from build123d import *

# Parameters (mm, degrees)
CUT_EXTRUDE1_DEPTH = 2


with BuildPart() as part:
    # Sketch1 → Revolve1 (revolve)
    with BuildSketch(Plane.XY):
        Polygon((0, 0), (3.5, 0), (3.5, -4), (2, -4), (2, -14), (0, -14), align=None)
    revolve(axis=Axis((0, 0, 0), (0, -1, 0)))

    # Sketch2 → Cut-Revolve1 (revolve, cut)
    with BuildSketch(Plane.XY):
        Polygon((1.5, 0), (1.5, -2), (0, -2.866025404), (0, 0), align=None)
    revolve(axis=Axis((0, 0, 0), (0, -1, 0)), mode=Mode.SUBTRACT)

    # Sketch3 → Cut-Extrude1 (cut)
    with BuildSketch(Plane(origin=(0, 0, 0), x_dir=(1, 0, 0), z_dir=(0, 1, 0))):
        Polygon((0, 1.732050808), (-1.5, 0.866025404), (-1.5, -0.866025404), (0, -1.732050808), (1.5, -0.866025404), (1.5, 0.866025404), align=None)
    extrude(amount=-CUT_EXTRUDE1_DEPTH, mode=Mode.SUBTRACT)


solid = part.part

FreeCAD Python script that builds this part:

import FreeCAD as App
import Part
import Sketcher

V = App.Vector
Q = App.Units.Quantity

doc = App.newDocument("Part")
body = doc.addObject("PartDesign::Body", "Body")

# Sketch on XY plane
sketch1 = body.newObject("Sketcher::SketchObject", "Sketch")
sketch1.AttachmentSupport = (doc.getObject("XY_Plane"), [""])
sketch1.MapMode = "FlatFace"
sketch1.addGeometry(Part.LineSegment(V(3.5, 0, 0), V(0, 0, 0)), False)
sketch1.addGeometry(Part.LineSegment(V(0, 0, 0), V(0, -14, 0)), False)
sketch1.addGeometry(Part.LineSegment(V(0, -14, 0), V(2, -14, 0)), False)
sketch1.addGeometry(Part.LineSegment(V(2, -14, 0), V(2, -4, 0)), False)
sketch1.addGeometry(Part.LineSegment(V(2, -4, 0), V(3.5, -4, 0)), False)
sketch1.addGeometry(Part.LineSegment(V(3.5, -4, 0), V(3.5, 0, 0)), False)
sketch1.addConstraint(Sketcher.Constraint("Coincident", 0, 2, 1, 1))
sketch1.addConstraint(Sketcher.Constraint("Coincident", 1, 2, 2, 1))
sketch1.addConstraint(Sketcher.Constraint("Coincident", 2, 2, 3, 1))
sketch1.addConstraint(Sketcher.Constraint("Coincident", 3, 2, 4, 1))
sketch1.addConstraint(Sketcher.Constraint("Coincident", 4, 2, 5, 1))
sketch1.addConstraint(Sketcher.Constraint("Coincident", 5, 2, 0, 1))
sketch1.addConstraint(Sketcher.Constraint("Horizontal", 0))
sketch1.addConstraint(Sketcher.Constraint("Vertical", 1))
sketch1.addConstraint(Sketcher.Constraint("Horizontal", 2))
sketch1.addConstraint(Sketcher.Constraint("Vertical", 3))
sketch1.addConstraint(Sketcher.Constraint("Horizontal", 4))
sketch1.addConstraint(Sketcher.Constraint("Vertical", 5))
sketch1.addConstraint(Sketcher.Constraint("Coincident", 0, 2, -1, 1))
sketch1.addConstraint(Sketcher.Constraint("DistanceX", 2, 1, 2, 2, Q("2 mm")))
sketch1.addConstraint(Sketcher.Constraint("DistanceY", 1, 2, 1, 1, Q("14 mm")))
sketch1.addConstraint(Sketcher.Constraint("DistanceY", 3, 1, 3, 2, Q("10 mm")))
sketch1.addConstraint(Sketcher.Constraint("DistanceX", 0, 2, 0, 1, Q("3.5 mm")))
revolution = body.newObject("PartDesign::Revolution", "Revolution")
revolution.Profile = sketch1
revolution.ReferenceAxis = (sketch1, ["V_Axis"])
revolution.Angle = 360

# Sketch on XY plane
sketch2 = body.newObject("Sketcher::SketchObject", "Sketch001")
sketch2.AttachmentSupport = (doc.getObject("XY_Plane"), [""])
sketch2.MapMode = "FlatFace"
sketch2.addGeometry(Part.LineSegment(V(1.5, -2, 0), V(1.5, 0, 0)), False)
sketch2.addGeometry(Part.LineSegment(V(1.5, 0, 0), V(0, 0, 0)), False)
sketch2.addGeometry(Part.LineSegment(V(0, 0, 0), V(0, -2.9, 0)), False)
sketch2.addGeometry(Part.LineSegment(V(0, -2.9, 0), V(1.5, -2, 0)), False)
sketch2.addConstraint(Sketcher.Constraint("Coincident", 0, 2, 1, 1))
sketch2.addConstraint(Sketcher.Constraint("Coincident", 1, 2, 2, 1))
sketch2.addConstraint(Sketcher.Constraint("Coincident", 2, 2, 3, 1))
sketch2.addConstraint(Sketcher.Constraint("Coincident", 3, 2, 0, 1))
sketch2.addConstraint(Sketcher.Constraint("Vertical", 0))
sketch2.addConstraint(Sketcher.Constraint("Horizontal", 1))
sketch2.addConstraint(Sketcher.Constraint("Vertical", 2))
sketch2.addConstraint(Sketcher.Constraint("Coincident", 1, 2, -1, 1))
sketch2.addConstraint(Sketcher.Constraint("DistanceY", 0, 1, 0, 2, Q("2 mm")))
sketch2.addConstraint(Sketcher.Constraint("Angle", 3, Q("30 deg")))
sketch2.addConstraint(Sketcher.Constraint("DistanceX", 1, 2, 1, 1, Q("1.5 mm")))
groove = body.newObject("PartDesign::Groove", "Groove")
groove.Profile = sketch2
groove.ReferenceAxis = (sketch2, ["V_Axis"])
groove.Angle = 360

# Sketch on XZ plane
sketch3 = body.newObject("Sketcher::SketchObject", "Sketch002")
sketch3.AttachmentSupport = (doc.getObject("XZ_Plane"), [""])
sketch3.MapMode = "FlatFace"
sketch3.addGeometry(Part.LineSegment(V(0, -1.7, 0), V(-1.5, -0.9, 0)), False)
sketch3.addGeometry(Part.LineSegment(V(-1.5, -0.9, 0), V(-1.5, 0.9, 0)), False)
sketch3.addGeometry(Part.LineSegment(V(-1.5, 0.9, 0), V(0, 1.7, 0)), False)
sketch3.addGeometry(Part.LineSegment(V(0, 1.7, 0), V(1.5, 0.9, 0)), False)
sketch3.addGeometry(Part.LineSegment(V(1.5, 0.9, 0), V(1.5, -0.9, 0)), False)
sketch3.addGeometry(Part.LineSegment(V(1.5, -0.9, 0), V(0, -1.7, 0)), False)
sketch3.addConstraint(Sketcher.Constraint("Coincident", 0, 2, 1, 1))
sketch3.addConstraint(Sketcher.Constraint("Coincident", 1, 2, 2, 1))
sketch3.addConstraint(Sketcher.Constraint("Coincident", 2, 2, 3, 1))
sketch3.addConstraint(Sketcher.Constraint("Coincident", 3, 2, 4, 1))
sketch3.addConstraint(Sketcher.Constraint("Coincident", 4, 2, 5, 1))
sketch3.addConstraint(Sketcher.Constraint("Coincident", 5, 2, 0, 1))
sketch3.addConstraint(Sketcher.Constraint("Vertical", 1))
sketch3.addConstraint(Sketcher.Constraint("Vertical", 4))
sketch3.addConstraint(Sketcher.Constraint("Symmetric", 0, 2, 3, 2, -1, 1))
sketch3.addConstraint(Sketcher.Constraint("Symmetric", 2, 2, 5, 2, -1, 1))
sketch3.addConstraint(Sketcher.Constraint("PointOnObject", 2, 2, -2))
sketch3.addConstraint(Sketcher.Constraint("Parallel", 2, 5))
sketch3.addConstraint(Sketcher.Constraint("Horizontal", 1, 2, 3, 2))
sketch3.addConstraint(Sketcher.Constraint("Angle", 0, Q("150 deg")))
sketch3.addConstraint(Sketcher.Constraint("DistanceX", 1, 2, 3, 2, Q("3 mm")))
sketch3.addConstraint(Sketcher.Constraint("DistanceY", 1, 1, 1, 2, Q("1.732051 mm")))
pocket1 = body.newObject("PartDesign::Pocket", "Pocket")
pocket1.Profile = sketch3
pocket1.Length = 2
pocket1.Reversed = True

doc.recompute()
